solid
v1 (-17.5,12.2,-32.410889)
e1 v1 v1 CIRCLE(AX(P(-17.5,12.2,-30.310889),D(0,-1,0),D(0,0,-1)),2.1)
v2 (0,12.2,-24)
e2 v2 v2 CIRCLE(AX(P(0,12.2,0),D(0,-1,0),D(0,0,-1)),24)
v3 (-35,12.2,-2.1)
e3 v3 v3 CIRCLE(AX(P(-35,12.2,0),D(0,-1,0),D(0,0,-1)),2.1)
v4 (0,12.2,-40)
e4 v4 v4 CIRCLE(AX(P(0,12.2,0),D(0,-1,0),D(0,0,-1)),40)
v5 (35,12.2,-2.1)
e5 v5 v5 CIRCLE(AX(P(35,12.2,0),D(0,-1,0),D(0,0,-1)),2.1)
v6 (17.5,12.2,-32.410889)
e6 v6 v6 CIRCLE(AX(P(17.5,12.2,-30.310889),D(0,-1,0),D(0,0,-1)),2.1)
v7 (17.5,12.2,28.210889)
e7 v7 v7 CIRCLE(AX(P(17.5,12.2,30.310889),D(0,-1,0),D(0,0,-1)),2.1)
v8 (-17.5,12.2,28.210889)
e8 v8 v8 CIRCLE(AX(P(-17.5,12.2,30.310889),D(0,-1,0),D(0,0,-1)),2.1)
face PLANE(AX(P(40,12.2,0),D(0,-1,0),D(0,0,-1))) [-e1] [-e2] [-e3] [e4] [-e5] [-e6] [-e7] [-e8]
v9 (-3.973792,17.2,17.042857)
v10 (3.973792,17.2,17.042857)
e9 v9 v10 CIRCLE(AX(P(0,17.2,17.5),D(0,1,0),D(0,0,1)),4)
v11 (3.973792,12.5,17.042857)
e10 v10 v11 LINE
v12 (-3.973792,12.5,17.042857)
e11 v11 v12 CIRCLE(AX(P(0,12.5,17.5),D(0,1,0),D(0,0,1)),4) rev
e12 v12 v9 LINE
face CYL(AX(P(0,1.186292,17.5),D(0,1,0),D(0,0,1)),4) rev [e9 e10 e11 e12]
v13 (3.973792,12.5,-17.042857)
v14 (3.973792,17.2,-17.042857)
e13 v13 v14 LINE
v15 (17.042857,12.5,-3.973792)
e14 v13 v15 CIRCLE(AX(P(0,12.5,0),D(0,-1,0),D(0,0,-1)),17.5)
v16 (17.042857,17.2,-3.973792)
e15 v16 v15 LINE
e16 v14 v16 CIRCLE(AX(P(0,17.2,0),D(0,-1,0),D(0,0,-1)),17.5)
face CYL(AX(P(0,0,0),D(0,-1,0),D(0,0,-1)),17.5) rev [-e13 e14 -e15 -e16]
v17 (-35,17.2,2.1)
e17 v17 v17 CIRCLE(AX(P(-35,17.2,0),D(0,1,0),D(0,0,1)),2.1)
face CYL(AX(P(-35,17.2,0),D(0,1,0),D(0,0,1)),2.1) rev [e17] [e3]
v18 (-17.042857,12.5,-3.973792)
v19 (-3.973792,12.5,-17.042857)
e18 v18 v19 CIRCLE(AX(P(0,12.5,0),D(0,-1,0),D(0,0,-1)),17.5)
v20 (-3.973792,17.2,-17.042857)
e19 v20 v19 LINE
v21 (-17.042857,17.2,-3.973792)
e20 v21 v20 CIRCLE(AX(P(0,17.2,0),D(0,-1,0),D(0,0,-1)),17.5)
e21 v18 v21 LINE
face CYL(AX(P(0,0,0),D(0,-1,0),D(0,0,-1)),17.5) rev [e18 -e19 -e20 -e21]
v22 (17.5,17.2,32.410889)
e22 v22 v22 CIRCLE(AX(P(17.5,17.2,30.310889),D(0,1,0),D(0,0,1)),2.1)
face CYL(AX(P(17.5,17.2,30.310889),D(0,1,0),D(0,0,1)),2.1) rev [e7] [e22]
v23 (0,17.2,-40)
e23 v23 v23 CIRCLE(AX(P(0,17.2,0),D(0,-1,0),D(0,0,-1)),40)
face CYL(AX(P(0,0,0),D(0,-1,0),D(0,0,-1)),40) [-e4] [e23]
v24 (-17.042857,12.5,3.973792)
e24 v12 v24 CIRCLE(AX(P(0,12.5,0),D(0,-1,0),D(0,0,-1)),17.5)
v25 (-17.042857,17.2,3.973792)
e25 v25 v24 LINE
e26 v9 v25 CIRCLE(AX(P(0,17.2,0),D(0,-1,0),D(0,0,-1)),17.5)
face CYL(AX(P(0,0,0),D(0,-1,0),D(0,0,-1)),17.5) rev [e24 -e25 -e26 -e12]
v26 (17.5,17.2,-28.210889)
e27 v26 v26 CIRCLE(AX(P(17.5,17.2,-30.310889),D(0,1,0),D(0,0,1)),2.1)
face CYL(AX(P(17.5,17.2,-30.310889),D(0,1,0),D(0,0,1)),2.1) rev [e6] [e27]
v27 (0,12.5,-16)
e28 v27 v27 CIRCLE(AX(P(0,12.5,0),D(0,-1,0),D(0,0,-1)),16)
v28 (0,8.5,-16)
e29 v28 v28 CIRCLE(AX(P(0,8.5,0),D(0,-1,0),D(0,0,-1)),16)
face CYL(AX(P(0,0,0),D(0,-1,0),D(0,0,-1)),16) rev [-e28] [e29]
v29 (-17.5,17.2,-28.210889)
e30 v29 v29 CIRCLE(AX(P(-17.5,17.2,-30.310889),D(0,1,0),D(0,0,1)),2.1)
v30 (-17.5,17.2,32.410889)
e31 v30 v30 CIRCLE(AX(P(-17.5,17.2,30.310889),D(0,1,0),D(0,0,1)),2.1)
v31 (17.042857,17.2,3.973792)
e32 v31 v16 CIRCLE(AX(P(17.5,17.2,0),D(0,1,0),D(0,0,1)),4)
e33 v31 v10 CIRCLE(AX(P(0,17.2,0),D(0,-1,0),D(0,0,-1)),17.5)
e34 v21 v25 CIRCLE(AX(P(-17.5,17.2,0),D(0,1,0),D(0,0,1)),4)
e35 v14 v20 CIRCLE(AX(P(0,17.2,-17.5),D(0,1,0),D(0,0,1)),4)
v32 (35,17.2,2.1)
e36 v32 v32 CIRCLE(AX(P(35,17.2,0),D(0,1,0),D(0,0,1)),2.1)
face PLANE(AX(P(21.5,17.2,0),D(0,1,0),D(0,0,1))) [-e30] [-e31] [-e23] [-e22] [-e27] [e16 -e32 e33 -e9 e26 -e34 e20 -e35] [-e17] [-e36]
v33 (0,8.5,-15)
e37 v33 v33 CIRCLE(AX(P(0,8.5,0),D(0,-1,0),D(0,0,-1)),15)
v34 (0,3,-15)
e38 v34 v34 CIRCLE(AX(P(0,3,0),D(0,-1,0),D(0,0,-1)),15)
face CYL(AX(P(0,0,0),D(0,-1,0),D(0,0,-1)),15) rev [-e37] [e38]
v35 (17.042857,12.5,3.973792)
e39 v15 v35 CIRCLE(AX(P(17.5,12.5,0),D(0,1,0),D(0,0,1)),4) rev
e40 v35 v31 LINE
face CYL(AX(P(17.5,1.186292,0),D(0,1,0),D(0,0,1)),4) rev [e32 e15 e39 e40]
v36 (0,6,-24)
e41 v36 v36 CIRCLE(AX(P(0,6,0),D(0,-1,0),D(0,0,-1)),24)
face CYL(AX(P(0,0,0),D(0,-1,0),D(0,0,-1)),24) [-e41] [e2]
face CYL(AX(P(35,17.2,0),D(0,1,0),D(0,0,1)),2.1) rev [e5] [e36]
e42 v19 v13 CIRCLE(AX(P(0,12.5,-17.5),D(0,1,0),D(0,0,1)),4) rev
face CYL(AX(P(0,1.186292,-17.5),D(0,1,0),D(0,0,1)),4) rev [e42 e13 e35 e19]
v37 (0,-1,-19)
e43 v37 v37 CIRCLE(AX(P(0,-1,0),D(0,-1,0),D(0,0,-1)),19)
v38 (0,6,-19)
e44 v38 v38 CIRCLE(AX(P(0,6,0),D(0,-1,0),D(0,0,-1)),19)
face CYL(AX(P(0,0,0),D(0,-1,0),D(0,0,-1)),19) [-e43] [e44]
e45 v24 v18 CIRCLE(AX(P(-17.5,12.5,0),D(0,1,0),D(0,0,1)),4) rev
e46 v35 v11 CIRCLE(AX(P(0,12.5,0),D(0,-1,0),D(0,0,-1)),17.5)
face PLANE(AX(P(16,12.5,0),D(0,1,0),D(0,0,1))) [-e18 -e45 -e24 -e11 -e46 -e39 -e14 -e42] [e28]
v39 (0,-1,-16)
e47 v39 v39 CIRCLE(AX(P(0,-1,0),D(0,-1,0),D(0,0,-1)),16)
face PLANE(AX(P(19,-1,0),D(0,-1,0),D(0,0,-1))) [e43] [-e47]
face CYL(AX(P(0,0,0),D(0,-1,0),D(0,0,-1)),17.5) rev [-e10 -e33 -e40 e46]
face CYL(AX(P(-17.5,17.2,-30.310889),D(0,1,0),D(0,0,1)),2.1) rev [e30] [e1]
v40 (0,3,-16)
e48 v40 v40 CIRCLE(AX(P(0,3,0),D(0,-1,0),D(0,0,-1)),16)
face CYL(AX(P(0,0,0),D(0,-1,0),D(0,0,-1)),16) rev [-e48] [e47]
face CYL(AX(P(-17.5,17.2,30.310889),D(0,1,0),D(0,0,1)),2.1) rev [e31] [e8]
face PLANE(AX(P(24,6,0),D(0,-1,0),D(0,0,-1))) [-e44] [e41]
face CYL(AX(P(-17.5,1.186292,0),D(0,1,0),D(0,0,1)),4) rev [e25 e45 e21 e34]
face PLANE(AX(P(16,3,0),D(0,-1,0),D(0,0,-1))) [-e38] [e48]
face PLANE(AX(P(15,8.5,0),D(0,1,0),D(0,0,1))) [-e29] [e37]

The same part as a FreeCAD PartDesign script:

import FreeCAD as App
import Part
import Sketcher
Q = App.Units.Quantity


def add_polygon(sketch, points):
    """Adds a closed chain of lines whose ends are joined by coincident constraints."""
    first, n = sketch.GeometryCount, len(points)
    for a, b in zip(points, points[1:] + points[:1]):
        sketch.addGeometry(Part.LineSegment(App.Vector(*a, 0), App.Vector(*b, 0)), False)
    for i in range(n):
        sketch.addConstraint(Sketcher.Constraint("Coincident", first + i, 2, first + (i + 1) % n, 1))

doc = App.newDocument("Part")
params = doc.addObject("Spreadsheet::Sheet", "Params")
for row, (alias, value) in enumerate([
    ("sketch1_width", "16 mm"),
    ("sketch1_width2", "1 mm"),
    ("sketch1_width3", "3 mm"),
    ("sketch1_width4", "5 mm"),
    ("sketch1_height", "4 mm"),
    ("revolution_angle", "360 deg"),
    ("sketch2_diameter", "8 mm"),
    ("pocket1_length", "4.7 mm"),
    ("sketch3_diameter", "4.2 mm"),
    ("hole_diameter", "4.2 mm"),
], start=1):
    params.set(f"A{row}", alias)
    params.set(f"B{row}", "=" + value)
    params.setAlias(f"B{row}", alias)

body = doc.addObject("PartDesign::Body", "Body")

# Sketch on XY plane
sketch1 = body.newObject("Sketcher::SketchObject", "Sketch")
sketch1.AttachmentSupport = (doc.getObject("XY_Plane"), [""])
sketch1.MapMode = "FlatFace"
add_polygon(sketch1, [(24, 6), (24, 12.2), (40, 12.2), (40, 17.2), (17.5, 17.2), (17.5, 12.5), (16, 12.5), (16, 8.5), (15, 8.5), (15, 3), (16, 3), (16, -1), (19, -1), (19, 6)])  # lines 0-13
sketch1.addConstraint([
    Sketcher.Constraint("Vertical", 0),
    Sketcher.Constraint("Horizontal", 1),
    Sketcher.Constraint("Vertical", 2),
    Sketcher.Constraint("Horizontal", 3),
    Sketcher.Constraint("Vertical", 4),
    Sketcher.Constraint("Horizontal", 5),
    Sketcher.Constraint("Vertical", 6),
    Sketcher.Constraint("Horizontal", 7),
    Sketcher.Constraint("Vertical", 8),
    Sketcher.Constraint("Horizontal", 9),
    Sketcher.Constraint("Vertical", 10),
    Sketcher.Constraint("Horizontal", 11),
    Sketcher.Constraint("Vertical", 12),
    Sketcher.Constraint("Horizontal", 13),
    Sketcher.Constraint("Vertical", 6, 2, 9, 2),
    Sketcher.Constraint("Equal", 13, 2),
    Sketcher.Constraint("Equal", 6, 10),
    Sketcher.Constraint("DistanceX", 1, 1, 1, 2, Q("16 mm")),
    Sketcher.Constraint("DistanceX", 7, 2, 7, 1, Q("1 mm")),
    Sketcher.Constraint("DistanceX", 11, 1, 11, 2, Q("3 mm")),
    Sketcher.Constraint("DistanceX", 13, 1, 13, 2, Q("5 mm")),
    Sketcher.Constraint("DistanceY", 6, 2, 6, 1, Q("4 mm")),
    Sketcher.Constraint("DistanceY", 12, 1, 12, 2, Q("7 mm")),
    Sketcher.Constraint("DistanceX", 3, 2, 3, 1, Q("22.5 mm")),
    Sketcher.Constraint("DistanceY", 0, 1, 0, 2, Q("6.2 mm")),
    Sketcher.Constraint("DistanceY", 4, 2, 4, 1, Q("4.7 mm")),
    Sketcher.Constraint("DistanceX", -1, 1, 0, 2, Q("24 mm")),
    Sketcher.Constraint("DistanceY", -1, 1, 8, 2, Q("3 mm")),
])
sketch1.setExpression("Constraints[31]", "Params.sketch1_width")
sketch1.setExpression("Constraints[32]", "Params.sketch1_width2")
sketch1.setExpression("Constraints[33]", "Params.sketch1_width3")
sketch1.setExpression("Constraints[34]", "Params.sketch1_width4")
sketch1.setExpression("Constraints[35]", "Params.sketch1_height")
revolution = body.newObject("PartDesign::Revolution", "Revolution")
revolution.Profile = sketch1
revolution.ReferenceAxis = (sketch1, ["V_Axis"])
revolution.setExpression("Angle", "Params.revolution_angle")

# Sketch on XZ plane
sketch2 = body.newObject("Sketcher::SketchObject", "Sketch001")
sketch2.AttachmentSupport = (doc.getObject("XZ_Plane"), [""])
sketch2.MapMode = "FlatFace"
sketch2.AttachmentOffset = App.Placement(App.Vector(0, 0, -17.2), App.Rotation())
sketch2.addGeometry([
    Part.Circle(App.Vector(0, 17.5, 0), App.Vector(0, 0, 1), 4),
    Part.Circle(App.Vector(17.5, 0, 0), App.Vector(0, 0, 1), 4),
    Part.Circle(App.Vector(0, -17.5, 0), App.Vector(0, 0, 1), 4),
    Part.Circle(App.Vector(-17.5, 0, 0), App.Vector(0, 0, 1), 4),
], False)
sketch2.addConstraint([
    Sketcher.Constraint("Equal", 0, 1),
    Sketcher.Constraint("Equal", 1, 2),
    Sketcher.Constraint("Equal", 2, 3),
    Sketcher.Constraint("Symmetric", 0, 3, 2, 3, -1, 1),
    Sketcher.Constraint("Symmetric", 1, 3, 3, 3, -1, 1),
    Sketcher.Constraint("PointOnObject", 0, 3, -2),
    Sketcher.Constraint("PointOnObject", 1, 3, -1),
    Sketcher.Constraint("Diameter", 0, Q("8 mm")),
    Sketcher.Constraint("DistanceY", 2, 3, 0, 3, Q("35 mm")),
    Sketcher.Constraint("DistanceX", 3, 3, 1, 3, Q("35 mm")),
])
sketch2.setExpression("Constraints[7]", "Params.sketch2_diameter")
pocket1 = body.newObject("PartDesign::Pocket", "Pocket")
pocket1.Profile = sketch2
pocket1.setExpression("Length", "Params.pocket1_length")
pocket1.Reversed = True

# Sketch on XZ plane
sketch3 = body.newObject("Sketcher::SketchObject", "Sketch002")
sketch3.AttachmentSupport = (doc.getObject("XZ_Plane"), [""])
sketch3.MapMode = "FlatFace"
sketch3.AttachmentOffset = App.Placement(App.Vector(0, 0, -17.2), App.Rotation())
sketch3.addGeometry([
    Part.Circle(App.Vector(17.5, -30.3, 0), App.Vector(0, 0, 1), 2.1),  # 0
    Part.Circle(App.Vector(35, 0, 0), App.Vector(0, 0, 1), 2.1),  # 1
    Part.Circle(App.Vector(17.5, 30.3, 0), App.Vector(0, 0, 1), 2.1),  # 2
    Part.Circle(App.Vector(-17.5, 30.3, 0), App.Vector(0, 0, 1), 2.1),  # 3
    Part.Circle(App.Vector(-35, 0, 0), App.Vector(0, 0, 1), 2.1),  # 4
    Part.Circle(App.Vector(-17.5, -30.3, 0), App.Vector(0, 0, 1), 2.1),  # 5
], False)
sketch3.addConstraint([
    Sketcher.Constraint("Equal", 0, 1),
    Sketcher.Constraint("Equal", 1, 2),
    Sketcher.Constraint("Equal", 2, 3),
    Sketcher.Constraint("Equal", 3, 4),
    Sketcher.Constraint("Equal", 4, 5),
    Sketcher.Constraint("Symmetric", 0, 3, 3, 3, -1, 1),
    Sketcher.Constraint("Symmetric", 1, 3, 4, 3, -1, 1),
    Sketcher.Constraint("Symmetric", 2, 3, 5, 3, -1, 1),
    Sketcher.Constraint("Symmetric", 2, 3, 3, 3, -2),
    Sketcher.Constraint("PointOnObject", 1, 3, -1),
    Sketcher.Constraint("Diameter", 0, Q("4.2 mm")),
    Sketcher.Constraint("DistanceX", -1, 1, 1, 3, Q("35 mm")),
    Sketcher.Constraint("DistanceX", 3, 3, 2, 3, Q("35 mm")),
    Sketcher.Constraint("DistanceY", 0, 3, -1, 1, Q("30.310889 mm")),
])
sketch3.setExpression("Constraints[10]", "Params.sketch3_diameter")
doc.recompute()
hole = body.newObject("PartDesign::Hole", "Hole")
hole.Profile = sketch3
hole.ThreadType = "None"
hole.setExpression("Diameter", "Params.hole_diameter")
hole.DepthType = "ThroughAll"
hole.Reversed = True

doc.recompute()
